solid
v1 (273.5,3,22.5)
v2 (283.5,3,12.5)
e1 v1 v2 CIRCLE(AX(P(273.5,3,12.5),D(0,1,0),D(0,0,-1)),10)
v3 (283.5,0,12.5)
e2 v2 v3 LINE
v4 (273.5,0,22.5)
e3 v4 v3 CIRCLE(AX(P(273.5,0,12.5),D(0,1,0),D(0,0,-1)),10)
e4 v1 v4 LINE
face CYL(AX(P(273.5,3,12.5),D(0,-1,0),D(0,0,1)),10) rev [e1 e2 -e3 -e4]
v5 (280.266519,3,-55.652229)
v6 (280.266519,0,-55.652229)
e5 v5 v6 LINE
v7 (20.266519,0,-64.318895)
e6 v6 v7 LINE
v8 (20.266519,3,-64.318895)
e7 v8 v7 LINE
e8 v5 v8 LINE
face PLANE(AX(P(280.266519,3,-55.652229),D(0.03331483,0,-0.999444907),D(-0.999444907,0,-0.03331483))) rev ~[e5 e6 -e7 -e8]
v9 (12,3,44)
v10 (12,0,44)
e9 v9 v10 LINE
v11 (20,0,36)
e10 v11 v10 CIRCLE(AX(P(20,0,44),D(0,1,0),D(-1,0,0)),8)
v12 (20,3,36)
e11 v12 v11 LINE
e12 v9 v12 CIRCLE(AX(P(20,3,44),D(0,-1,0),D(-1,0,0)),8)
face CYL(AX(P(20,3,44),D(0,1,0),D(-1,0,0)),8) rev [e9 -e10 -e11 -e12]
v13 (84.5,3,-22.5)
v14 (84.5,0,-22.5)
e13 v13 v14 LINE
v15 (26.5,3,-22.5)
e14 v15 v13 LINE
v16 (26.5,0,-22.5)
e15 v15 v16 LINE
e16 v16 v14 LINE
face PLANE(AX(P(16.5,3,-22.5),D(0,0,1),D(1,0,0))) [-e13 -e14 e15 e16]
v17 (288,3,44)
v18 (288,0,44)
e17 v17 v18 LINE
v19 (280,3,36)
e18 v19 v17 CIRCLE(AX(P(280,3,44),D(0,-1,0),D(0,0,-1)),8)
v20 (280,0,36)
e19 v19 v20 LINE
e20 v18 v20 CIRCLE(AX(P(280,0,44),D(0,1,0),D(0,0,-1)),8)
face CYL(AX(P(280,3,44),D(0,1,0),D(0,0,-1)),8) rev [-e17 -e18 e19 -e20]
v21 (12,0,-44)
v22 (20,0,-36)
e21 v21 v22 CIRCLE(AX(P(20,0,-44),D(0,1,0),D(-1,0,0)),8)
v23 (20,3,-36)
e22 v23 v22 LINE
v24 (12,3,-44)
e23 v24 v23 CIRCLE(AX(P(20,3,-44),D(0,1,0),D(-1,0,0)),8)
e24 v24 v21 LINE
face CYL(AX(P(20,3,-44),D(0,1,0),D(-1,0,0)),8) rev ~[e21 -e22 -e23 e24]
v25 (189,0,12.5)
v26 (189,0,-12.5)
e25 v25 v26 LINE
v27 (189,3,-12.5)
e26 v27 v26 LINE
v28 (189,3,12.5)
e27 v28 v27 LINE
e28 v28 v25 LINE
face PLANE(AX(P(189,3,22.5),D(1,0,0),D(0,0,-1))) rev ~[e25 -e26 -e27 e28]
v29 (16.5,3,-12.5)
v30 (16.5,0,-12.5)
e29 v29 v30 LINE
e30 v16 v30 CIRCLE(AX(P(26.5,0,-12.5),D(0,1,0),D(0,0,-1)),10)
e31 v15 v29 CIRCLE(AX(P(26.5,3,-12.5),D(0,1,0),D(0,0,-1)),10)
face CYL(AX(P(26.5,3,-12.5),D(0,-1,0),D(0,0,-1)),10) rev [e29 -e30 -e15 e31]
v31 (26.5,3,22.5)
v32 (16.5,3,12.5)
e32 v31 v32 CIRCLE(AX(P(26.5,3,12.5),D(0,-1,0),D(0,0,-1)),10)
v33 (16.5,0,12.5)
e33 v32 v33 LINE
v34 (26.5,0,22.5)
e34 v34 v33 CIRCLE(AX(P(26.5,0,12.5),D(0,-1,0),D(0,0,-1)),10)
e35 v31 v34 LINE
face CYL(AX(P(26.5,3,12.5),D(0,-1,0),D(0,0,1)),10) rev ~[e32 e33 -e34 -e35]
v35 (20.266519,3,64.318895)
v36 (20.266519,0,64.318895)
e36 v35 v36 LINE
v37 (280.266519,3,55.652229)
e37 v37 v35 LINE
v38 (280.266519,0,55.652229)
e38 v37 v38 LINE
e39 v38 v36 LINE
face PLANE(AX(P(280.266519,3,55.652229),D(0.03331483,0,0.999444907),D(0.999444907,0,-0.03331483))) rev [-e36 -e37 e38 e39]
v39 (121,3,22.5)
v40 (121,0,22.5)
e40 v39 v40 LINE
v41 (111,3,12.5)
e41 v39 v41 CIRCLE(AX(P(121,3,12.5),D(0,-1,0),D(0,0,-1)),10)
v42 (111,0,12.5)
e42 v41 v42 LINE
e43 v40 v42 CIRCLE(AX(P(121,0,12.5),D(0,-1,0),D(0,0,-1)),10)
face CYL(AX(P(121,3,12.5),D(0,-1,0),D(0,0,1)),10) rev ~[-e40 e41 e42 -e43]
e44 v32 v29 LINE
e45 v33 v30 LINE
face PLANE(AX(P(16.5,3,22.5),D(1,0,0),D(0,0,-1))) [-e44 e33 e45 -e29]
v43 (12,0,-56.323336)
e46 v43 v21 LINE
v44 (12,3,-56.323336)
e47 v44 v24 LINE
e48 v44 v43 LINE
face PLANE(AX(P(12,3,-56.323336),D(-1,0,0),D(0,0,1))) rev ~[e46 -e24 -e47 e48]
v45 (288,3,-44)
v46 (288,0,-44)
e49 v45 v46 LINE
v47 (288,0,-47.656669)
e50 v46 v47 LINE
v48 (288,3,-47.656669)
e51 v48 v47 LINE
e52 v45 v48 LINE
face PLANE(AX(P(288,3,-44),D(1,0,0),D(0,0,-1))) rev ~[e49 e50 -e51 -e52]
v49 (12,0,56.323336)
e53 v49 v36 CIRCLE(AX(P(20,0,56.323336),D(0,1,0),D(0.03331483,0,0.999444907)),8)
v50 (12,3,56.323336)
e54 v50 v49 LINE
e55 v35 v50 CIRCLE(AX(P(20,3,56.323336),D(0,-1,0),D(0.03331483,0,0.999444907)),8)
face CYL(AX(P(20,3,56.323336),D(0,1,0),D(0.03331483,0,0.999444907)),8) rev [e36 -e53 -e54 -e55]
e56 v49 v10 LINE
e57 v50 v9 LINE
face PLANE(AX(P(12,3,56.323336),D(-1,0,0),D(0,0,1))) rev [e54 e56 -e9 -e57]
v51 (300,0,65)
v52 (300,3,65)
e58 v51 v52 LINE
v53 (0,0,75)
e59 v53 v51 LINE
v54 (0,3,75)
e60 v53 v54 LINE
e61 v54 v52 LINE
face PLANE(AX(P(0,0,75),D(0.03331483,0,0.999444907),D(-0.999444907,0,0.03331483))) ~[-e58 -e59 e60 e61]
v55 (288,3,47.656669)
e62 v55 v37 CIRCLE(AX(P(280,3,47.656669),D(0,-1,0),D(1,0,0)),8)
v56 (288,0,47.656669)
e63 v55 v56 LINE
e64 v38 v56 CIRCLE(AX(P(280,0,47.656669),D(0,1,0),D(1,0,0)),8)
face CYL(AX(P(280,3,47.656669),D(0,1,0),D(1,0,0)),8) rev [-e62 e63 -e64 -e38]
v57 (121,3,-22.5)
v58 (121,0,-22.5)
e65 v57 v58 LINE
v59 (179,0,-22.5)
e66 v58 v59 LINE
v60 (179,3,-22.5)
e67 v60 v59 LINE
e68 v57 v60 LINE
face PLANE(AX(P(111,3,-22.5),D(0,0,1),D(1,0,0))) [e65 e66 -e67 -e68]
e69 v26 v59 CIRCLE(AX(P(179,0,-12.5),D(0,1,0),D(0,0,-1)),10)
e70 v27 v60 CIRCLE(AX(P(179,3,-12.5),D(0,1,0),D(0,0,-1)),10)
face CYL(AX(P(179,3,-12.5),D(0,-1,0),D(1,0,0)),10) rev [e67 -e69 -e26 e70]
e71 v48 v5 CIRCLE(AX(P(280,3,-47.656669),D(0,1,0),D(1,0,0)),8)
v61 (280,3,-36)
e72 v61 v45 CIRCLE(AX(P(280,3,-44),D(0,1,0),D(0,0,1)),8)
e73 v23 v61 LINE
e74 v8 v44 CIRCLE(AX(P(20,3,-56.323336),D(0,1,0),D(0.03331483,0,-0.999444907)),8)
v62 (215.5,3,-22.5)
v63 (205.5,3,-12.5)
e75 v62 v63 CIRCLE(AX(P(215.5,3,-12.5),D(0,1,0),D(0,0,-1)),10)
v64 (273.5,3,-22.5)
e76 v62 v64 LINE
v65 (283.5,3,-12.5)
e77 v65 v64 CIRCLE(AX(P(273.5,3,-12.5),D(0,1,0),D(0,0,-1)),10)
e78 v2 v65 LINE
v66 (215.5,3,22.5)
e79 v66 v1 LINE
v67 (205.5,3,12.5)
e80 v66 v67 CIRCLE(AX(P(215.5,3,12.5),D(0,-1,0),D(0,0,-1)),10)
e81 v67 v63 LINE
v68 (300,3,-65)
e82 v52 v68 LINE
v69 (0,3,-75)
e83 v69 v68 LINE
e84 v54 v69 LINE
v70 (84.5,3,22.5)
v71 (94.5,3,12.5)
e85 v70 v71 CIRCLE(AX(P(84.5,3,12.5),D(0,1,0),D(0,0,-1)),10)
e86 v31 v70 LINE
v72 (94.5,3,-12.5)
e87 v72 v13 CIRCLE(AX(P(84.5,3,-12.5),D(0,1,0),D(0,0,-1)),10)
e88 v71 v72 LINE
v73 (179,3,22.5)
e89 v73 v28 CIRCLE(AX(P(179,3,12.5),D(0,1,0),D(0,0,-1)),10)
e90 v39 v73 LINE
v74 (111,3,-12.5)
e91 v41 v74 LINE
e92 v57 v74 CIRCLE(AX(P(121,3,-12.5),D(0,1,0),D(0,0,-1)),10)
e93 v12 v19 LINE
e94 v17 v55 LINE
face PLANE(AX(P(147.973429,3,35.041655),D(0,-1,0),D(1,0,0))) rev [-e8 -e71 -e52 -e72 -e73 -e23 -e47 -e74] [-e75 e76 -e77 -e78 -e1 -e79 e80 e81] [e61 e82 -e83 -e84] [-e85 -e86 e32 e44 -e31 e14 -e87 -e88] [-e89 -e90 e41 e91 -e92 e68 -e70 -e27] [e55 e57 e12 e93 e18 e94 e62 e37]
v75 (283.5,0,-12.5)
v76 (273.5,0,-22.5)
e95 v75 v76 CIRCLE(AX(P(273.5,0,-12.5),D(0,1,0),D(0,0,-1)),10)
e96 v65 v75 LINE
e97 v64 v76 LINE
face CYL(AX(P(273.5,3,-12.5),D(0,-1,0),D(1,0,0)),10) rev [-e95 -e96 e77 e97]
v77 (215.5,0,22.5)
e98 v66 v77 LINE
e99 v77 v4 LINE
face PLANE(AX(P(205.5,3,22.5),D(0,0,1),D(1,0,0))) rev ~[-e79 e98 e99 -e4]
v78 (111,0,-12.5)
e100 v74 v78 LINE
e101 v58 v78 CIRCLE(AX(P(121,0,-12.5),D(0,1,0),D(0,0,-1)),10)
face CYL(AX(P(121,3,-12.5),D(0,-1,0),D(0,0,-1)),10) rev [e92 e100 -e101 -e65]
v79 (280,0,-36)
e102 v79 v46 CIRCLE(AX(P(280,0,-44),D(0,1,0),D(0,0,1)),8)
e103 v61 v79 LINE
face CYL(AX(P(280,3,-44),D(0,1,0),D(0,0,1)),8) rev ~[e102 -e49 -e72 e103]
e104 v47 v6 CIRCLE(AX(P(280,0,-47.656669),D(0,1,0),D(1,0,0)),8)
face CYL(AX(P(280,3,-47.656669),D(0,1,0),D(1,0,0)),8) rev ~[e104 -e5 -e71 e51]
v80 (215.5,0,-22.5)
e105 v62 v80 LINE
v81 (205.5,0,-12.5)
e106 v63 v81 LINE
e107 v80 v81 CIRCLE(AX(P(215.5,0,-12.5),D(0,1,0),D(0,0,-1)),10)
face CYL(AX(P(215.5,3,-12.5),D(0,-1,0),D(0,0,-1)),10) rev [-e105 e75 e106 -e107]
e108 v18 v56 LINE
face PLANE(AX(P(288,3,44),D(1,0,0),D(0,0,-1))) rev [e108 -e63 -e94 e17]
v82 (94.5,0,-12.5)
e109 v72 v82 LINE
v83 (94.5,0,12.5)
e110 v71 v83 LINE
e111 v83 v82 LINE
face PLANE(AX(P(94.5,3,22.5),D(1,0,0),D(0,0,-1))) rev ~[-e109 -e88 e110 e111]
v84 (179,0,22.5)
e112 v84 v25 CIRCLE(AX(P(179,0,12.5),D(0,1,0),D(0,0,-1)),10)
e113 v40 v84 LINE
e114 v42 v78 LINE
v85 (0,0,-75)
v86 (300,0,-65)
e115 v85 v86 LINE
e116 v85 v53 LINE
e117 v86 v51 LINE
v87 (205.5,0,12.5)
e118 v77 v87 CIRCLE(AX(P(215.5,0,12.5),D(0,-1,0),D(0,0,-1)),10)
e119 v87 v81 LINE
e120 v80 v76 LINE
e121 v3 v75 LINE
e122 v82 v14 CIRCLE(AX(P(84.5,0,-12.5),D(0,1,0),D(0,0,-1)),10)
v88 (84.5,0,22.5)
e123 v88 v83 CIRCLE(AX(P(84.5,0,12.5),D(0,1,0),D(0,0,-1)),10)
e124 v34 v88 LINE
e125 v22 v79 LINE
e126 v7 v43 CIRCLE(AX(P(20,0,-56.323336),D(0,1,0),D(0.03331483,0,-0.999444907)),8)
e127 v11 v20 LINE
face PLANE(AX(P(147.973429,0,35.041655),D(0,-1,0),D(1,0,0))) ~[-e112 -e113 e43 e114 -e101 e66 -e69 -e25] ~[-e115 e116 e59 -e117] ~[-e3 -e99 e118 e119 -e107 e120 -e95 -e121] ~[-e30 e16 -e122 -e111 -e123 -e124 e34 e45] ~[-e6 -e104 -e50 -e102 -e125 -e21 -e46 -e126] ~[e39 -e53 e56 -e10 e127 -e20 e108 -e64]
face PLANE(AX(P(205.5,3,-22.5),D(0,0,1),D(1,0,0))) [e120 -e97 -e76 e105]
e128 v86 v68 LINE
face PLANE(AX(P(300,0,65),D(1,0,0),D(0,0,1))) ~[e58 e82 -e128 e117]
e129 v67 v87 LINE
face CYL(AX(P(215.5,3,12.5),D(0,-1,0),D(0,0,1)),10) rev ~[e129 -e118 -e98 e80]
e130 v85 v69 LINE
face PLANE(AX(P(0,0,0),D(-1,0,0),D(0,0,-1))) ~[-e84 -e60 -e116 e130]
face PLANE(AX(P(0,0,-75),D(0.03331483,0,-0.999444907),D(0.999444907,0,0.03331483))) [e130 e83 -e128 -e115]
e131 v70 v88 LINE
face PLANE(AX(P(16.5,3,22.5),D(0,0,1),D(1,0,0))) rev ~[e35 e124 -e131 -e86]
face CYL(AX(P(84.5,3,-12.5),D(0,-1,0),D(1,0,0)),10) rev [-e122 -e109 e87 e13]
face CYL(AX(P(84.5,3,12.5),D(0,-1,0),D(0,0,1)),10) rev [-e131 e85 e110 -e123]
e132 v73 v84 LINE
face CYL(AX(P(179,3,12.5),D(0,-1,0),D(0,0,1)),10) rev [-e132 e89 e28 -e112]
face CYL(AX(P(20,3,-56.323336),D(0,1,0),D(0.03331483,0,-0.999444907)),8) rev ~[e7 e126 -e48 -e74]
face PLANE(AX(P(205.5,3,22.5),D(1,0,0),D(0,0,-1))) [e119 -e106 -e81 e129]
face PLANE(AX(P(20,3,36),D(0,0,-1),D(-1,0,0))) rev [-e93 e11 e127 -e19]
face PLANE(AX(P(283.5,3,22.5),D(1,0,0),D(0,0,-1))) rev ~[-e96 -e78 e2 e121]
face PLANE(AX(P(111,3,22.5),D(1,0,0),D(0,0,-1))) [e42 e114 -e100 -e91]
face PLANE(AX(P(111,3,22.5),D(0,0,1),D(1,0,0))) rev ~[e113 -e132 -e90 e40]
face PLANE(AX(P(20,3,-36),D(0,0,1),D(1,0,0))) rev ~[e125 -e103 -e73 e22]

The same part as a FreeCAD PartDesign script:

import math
import FreeCAD as App
import Part
import Sketcher

V = App.Vector
Q = App.Units.Quantity


def edges_at(feature, points):
    """Names of the edges that pass closest to the given points."""
    edges = feature.Shape.Edges
    near = lambda p: min(range(len(edges)), key=lambda i: edges[i].distToShape(Part.Vertex(*p))[0])
    return sorted({f"Edge{near(p) + 1}" for p in points})

doc = App.newDocument("Part")
params = doc.addObject("Spreadsheet::Sheet", "Params")
for row, (alias, value) in enumerate([
    ("sketch1_width", "300 mm"),
    ("sketch1_height", "75 mm"),
    ("sketch1_height2", "65 mm"),
    ("pad1_length", "3 mm"),
    ("sketch2_width", "78 mm"),
    ("sketch2_height", "45 mm"),
    ("pocket1_length", "10 mm"),
    ("fillet_radius", "10 mm"),
    ("sketch3_radius", "8 mm"),
    ("sketch3_width", "260 mm"),
    ("pocket2_length", "10 mm"),
], start=1):
    params.set(f"A{row}", alias)
    params.set(f"B{row}", "=" + value)
    params.setAlias(f"B{row}", alias)

body = doc.addObject("PartDesign::Body", "Body")

# Sketch on XZ plane
sketch1 = doc.addObject("Sketcher::SketchObject", "Sketch")
body.addObject(sketch1)
sketch1.AttachmentSupport = (doc.XZ_Plane, [""])
sketch1.MapMode = "FlatFace"
sketch1.addGeometry([
    Part.LineSegment(V(0, -75, 0), V(0, 0, 0)),
    Part.LineSegment(V(0, 0, 0), V(300, 0, 0)),
    Part.LineSegment(V(300, 0, 0), V(300, -65, 0)),
    Part.LineSegment(V(300, -65, 0), V(0, -75, 0)),
], False)
sketch1.addConstraint([
    Sketcher.Constraint("Coincident", 0, 2, 1, 1),
    Sketcher.Constraint("Coincident", 1, 2, 2, 1),
    Sketcher.Constraint("Coincident", 2, 2, 3, 1),
    Sketcher.Constraint("Coincident", 3, 2, 0, 1),
    Sketcher.Constraint("Vertical", 0),
    Sketcher.Constraint("Horizontal", 1),
    Sketcher.Constraint("Vertical", 2),
    Sketcher.Constraint("Coincident", 0, 2, -1, 1),
    Sketcher.Constraint("DistanceX", 1, 1, 1, 2, Q("300 mm")),
    Sketcher.Constraint("DistanceY", 0, 1, 0, 2, Q("75 mm")),
    Sketcher.Constraint("DistanceY", 2, 2, 2, 1, Q("65 mm")),
])
sketch1.setExpression("Constraints[8]", "Params.sketch1_width")
sketch1.setExpression("Constraints[9]", "Params.sketch1_height")
sketch1.setExpression("Constraints[10]", "Params.sketch1_height2")
pad1 = doc.addObject("PartDesign::Pad", "Pad")
body.addObject(pad1)
pad1.Profile = sketch1
pad1.setExpression("Length", "Params.pad1_length")
pad1.Reversed = True
doc.recompute()

mirrored = doc.addObject("PartDesign::Mirrored", "Mirrored")
body.addObject(mirrored)
mirrored.Originals = [pad1]
mirrored.MirrorPlane = (doc.XY_Plane, [""])
body.Tip = mirrored

# Sketch on XZ plane
sketch2 = doc.addObject("Sketcher::SketchObject", "Sketch001")
body.addObject(sketch2)
sketch2.AttachmentSupport = (doc.XZ_Plane, [""])
sketch2.MapMode = "FlatFace"
sketch2.AttachmentOffset = App.Placement(V(0, 0, -3), App.Rotation())
sketch2.addGeometry([
    Part.LineSegment(V(16, -22, 0), V(16, 22, 0)),  # 0
    Part.LineSegment(V(16, 22, 0), V(94, 22, 0)),  # 1
    Part.LineSegment(V(94, 22, 0), V(94, -22, 0)),  # 2
    Part.LineSegment(V(94, -22, 0), V(16, -22, 0)),  # 3
    Part.LineSegment(V(111, -22, 0), V(111, 22, 0)),  # 4
    Part.LineSegment(V(111, 22, 0), V(189, 22, 0)),  # 5
    Part.LineSegment(V(189, 22, 0), V(189, -22, 0)),  # 6
    Part.LineSegment(V(189, -22, 0), V(111, -22, 0)),  # 7
    Part.LineSegment(V(206, -22, 0), V(206, 22, 0)),  # 8
    Part.LineSegment(V(206, 22, 0), V(284, 22, 0)),  # 9
    Part.LineSegment(V(284, 22, 0), V(284, -22, 0)),  # 10
    Part.LineSegment(V(284, -22, 0), V(206, -22, 0)),  # 11
], False)
sketch2.addConstraint([
    Sketcher.Constraint("Coincident", 0, 2, 1, 1),
    Sketcher.Constraint("Coincident", 1, 2, 2, 1),
    Sketcher.Constraint("Coincident", 2, 2, 3, 1),
    Sketcher.Constraint("Coincident", 3, 2, 0, 1),
    Sketcher.Constraint("Coincident", 4, 2, 5, 1),
    Sketcher.Constraint("Coincident", 5, 2, 6, 1),
    Sketcher.Constraint("Coincident", 6, 2, 7, 1),
    Sketcher.Constraint("Coincident", 7, 2, 4, 1),
    Sketcher.Constraint("Coincident", 8, 2, 9, 1),
    Sketcher.Constraint("Coincident", 9, 2, 10, 1),
    Sketcher.Constraint("Coincident", 10, 2, 11, 1),
    Sketcher.Constraint("Coincident", 11, 2, 8, 1),
    Sketcher.Constraint("Vertical", 0),
    Sketcher.Constraint("Horizontal", 1),
    Sketcher.Constraint("Vertical", 2),
    Sketcher.Constraint("Horizontal", 3),
    Sketcher.Constraint("Vertical", 4),
    Sketcher.Constraint("Horizontal", 5),
    Sketcher.Constraint("Vertical", 6),
    Sketcher.Constraint("Horizontal", 7),
    Sketcher.Constraint("Vertical", 8),
    Sketcher.Constraint("Horizontal", 9),
    Sketcher.Constraint("Vertical", 10),
    Sketcher.Constraint("Horizontal", 11),
    Sketcher.Constraint("Horizontal", 1, 2, 4, 2),
    Sketcher.Constraint("Horizontal", 3, 2, 6, 2),
    Sketcher.Constraint("Horizontal", 5, 2, 8, 2),
    Sketcher.Constraint("Horizontal", 7, 2, 10, 2),
    Sketcher.Constraint("Equal", 3, 5),
    Sketcher.Constraint("Equal", 7, 9),
    Sketcher.Constraint("DistanceX", 1, 1, 1, 2, Q("78 mm")),
    Sketcher.Constraint("DistanceY", 0, 1, 0, 2, Q("45 mm")),
    Sketcher.Constraint("DistanceX", -1, 1, 4, 2, Q("111 mm")),
    Sketcher.Constraint("DistanceX", 1, 2, 8, 2, Q("111 mm")),
    Sketcher.Constraint("DistanceX", -1, 1, 0, 2, Q("16.5 mm")),
    Sketcher.Constraint("DistanceY", -1, 1, 0, 2, Q("22.5 mm")),
])
sketch2.setExpression("Constraints[30]", "Params.sketch2_width")
sketch2.setExpression("Constraints[31]", "Params.sketch2_height")
pocket1 = doc.addObject("PartDesign::Pocket", "Pocket")
body.addObject(pocket1)
pocket1.Profile = sketch2
pocket1.setExpression("Length", "Params.pocket1_length")
pocket1.Reversed = True
doc.recompute()

fillet = doc.addObject("PartDesign::Fillet", "Fillet")
body.addObject(fillet)
fillet.Base = (pocket1, edges_at(pocket1, [
    (16.5, 1.5, 22.5),
    (16.5, 1.5, -22.5),
    (94.5, 1.5, -22.5),
    (94.5, 1.5, 22.5),
    (111, 1.5, 22.5),
    (111, 1.5, -22.5),
    (189, 1.5, -22.5),
    (189, 1.5, 22.5),
    (205.5, 1.5, 22.5),
    (205.5, 1.5, -22.5),
    (283.5, 1.5, -22.5),
    (283.5, 1.5, 22.5),
]))
fillet.setExpression("Radius", "Params.fillet_radius")

# Sketch on XZ plane
sketch3 = doc.addObject("Sketcher::SketchObject", "Sketch002")
body.addObject(sketch3)
sketch3.AttachmentSupport = (doc.XZ_Plane, [""])
sketch3.MapMode = "FlatFace"
sketch3.AttachmentOffset = App.Placement(V(0, 0, -3), App.Rotation())
sketch3.addGeometry([
    Part.LineSegment(V(12, -56.3, 0), V(12, -44, 0)),  # 0
    Part.ArcOfCircle(Part.Circle(V(20, -44, 0), V(0, 0, 1), 8), math.radians(90), math.radians(180)),  # 1
    Part.LineSegment(V(20, -36, 0), V(280, -36, 0)),  # 2
    Part.ArcOfCircle(Part.Circle(V(280, -44, 0), V(0, 0, 1), 8), math.radians(0), math.radians(90)),  # 3
    Part.LineSegment(V(288, -44, 0), V(288, -47.7, 0)),  # 4
    Part.ArcOfCircle(Part.Circle(V(280, -47.7, 0), V(0, 0, 1), 8), math.radians(-88), math.radians(0)),  # 5
    Part.LineSegment(V(280.3, -55.7, 0), V(20.3, -64.3, 0)),  # 6
    Part.ArcOfCircle(Part.Circle(V(20, -56.3, 0), V(0, 0, 1), 8), math.radians(180), math.radians(272)),  # 7
], False)
sketch3.addConstraint([
    Sketcher.Constraint("Tangent", 0, 2, 1, 2),
    Sketcher.Constraint("Tangent", 1, 1, 2, 1),
    Sketcher.Constraint("Tangent", 2, 2, 3, 2),
    Sketcher.Constraint("Tangent", 3, 1, 4, 1),
    Sketcher.Constraint("Tangent", 4, 2, 5, 2),
    Sketcher.Constraint("Tangent", 5, 1, 6, 1),
    Sketcher.Constraint("Tangent", 6, 2, 7, 2),
    Sketcher.Constraint("Tangent", 7, 1, 0, 1),
    Sketcher.Constraint("Vertical", 0),
    Sketcher.Constraint("Horizontal", 2),
    Sketcher.Constraint("Vertical", 4),
    Sketcher.Constraint("Equal", 1, 3),
    Sketcher.Constraint("Equal", 3, 5),
    Sketcher.Constraint("Equal", 5, 7),
    Sketcher.Constraint("Radius", 1, Q("8 mm")),
    Sketcher.Constraint("DistanceX", 2, 1, 2, 2, Q("260 mm")),
    Sketcher.Constraint("DistanceX", -1, 1, 1, 3, Q("20 mm")),
    Sketcher.Constraint("DistanceY", 1, 3, -1, 1, Q("44 mm")),
    Sketcher.Constraint("DistanceY", 4, 2, 4, 1, Q("3.656669 mm")),
    Sketcher.Constraint("DistanceY", 0, 1, 0, 2, Q("12.323336 mm")),
])
sketch3.setExpression("Constraints[14]", "Params.sketch3_radius")
sketch3.setExpression("Constraints[15]", "Params.sketch3_width")
pocket2 = doc.addObject("PartDesign::Pocket", "Pocket001")
body.addObject(pocket2)
pocket2.Profile = sketch3
pocket2.setExpression("Length", "Params.pocket2_length")
pocket2.Reversed = True
doc.recompute()

mirrored2 = doc.addObject("PartDesign::Mirrored", "Mirrored001")
body.addObject(mirrored2)
mirrored2.Originals = [pocket2]
mirrored2.MirrorPlane = (doc.XY_Plane, [""])
body.Tip = mirrored2

doc.recompute()
